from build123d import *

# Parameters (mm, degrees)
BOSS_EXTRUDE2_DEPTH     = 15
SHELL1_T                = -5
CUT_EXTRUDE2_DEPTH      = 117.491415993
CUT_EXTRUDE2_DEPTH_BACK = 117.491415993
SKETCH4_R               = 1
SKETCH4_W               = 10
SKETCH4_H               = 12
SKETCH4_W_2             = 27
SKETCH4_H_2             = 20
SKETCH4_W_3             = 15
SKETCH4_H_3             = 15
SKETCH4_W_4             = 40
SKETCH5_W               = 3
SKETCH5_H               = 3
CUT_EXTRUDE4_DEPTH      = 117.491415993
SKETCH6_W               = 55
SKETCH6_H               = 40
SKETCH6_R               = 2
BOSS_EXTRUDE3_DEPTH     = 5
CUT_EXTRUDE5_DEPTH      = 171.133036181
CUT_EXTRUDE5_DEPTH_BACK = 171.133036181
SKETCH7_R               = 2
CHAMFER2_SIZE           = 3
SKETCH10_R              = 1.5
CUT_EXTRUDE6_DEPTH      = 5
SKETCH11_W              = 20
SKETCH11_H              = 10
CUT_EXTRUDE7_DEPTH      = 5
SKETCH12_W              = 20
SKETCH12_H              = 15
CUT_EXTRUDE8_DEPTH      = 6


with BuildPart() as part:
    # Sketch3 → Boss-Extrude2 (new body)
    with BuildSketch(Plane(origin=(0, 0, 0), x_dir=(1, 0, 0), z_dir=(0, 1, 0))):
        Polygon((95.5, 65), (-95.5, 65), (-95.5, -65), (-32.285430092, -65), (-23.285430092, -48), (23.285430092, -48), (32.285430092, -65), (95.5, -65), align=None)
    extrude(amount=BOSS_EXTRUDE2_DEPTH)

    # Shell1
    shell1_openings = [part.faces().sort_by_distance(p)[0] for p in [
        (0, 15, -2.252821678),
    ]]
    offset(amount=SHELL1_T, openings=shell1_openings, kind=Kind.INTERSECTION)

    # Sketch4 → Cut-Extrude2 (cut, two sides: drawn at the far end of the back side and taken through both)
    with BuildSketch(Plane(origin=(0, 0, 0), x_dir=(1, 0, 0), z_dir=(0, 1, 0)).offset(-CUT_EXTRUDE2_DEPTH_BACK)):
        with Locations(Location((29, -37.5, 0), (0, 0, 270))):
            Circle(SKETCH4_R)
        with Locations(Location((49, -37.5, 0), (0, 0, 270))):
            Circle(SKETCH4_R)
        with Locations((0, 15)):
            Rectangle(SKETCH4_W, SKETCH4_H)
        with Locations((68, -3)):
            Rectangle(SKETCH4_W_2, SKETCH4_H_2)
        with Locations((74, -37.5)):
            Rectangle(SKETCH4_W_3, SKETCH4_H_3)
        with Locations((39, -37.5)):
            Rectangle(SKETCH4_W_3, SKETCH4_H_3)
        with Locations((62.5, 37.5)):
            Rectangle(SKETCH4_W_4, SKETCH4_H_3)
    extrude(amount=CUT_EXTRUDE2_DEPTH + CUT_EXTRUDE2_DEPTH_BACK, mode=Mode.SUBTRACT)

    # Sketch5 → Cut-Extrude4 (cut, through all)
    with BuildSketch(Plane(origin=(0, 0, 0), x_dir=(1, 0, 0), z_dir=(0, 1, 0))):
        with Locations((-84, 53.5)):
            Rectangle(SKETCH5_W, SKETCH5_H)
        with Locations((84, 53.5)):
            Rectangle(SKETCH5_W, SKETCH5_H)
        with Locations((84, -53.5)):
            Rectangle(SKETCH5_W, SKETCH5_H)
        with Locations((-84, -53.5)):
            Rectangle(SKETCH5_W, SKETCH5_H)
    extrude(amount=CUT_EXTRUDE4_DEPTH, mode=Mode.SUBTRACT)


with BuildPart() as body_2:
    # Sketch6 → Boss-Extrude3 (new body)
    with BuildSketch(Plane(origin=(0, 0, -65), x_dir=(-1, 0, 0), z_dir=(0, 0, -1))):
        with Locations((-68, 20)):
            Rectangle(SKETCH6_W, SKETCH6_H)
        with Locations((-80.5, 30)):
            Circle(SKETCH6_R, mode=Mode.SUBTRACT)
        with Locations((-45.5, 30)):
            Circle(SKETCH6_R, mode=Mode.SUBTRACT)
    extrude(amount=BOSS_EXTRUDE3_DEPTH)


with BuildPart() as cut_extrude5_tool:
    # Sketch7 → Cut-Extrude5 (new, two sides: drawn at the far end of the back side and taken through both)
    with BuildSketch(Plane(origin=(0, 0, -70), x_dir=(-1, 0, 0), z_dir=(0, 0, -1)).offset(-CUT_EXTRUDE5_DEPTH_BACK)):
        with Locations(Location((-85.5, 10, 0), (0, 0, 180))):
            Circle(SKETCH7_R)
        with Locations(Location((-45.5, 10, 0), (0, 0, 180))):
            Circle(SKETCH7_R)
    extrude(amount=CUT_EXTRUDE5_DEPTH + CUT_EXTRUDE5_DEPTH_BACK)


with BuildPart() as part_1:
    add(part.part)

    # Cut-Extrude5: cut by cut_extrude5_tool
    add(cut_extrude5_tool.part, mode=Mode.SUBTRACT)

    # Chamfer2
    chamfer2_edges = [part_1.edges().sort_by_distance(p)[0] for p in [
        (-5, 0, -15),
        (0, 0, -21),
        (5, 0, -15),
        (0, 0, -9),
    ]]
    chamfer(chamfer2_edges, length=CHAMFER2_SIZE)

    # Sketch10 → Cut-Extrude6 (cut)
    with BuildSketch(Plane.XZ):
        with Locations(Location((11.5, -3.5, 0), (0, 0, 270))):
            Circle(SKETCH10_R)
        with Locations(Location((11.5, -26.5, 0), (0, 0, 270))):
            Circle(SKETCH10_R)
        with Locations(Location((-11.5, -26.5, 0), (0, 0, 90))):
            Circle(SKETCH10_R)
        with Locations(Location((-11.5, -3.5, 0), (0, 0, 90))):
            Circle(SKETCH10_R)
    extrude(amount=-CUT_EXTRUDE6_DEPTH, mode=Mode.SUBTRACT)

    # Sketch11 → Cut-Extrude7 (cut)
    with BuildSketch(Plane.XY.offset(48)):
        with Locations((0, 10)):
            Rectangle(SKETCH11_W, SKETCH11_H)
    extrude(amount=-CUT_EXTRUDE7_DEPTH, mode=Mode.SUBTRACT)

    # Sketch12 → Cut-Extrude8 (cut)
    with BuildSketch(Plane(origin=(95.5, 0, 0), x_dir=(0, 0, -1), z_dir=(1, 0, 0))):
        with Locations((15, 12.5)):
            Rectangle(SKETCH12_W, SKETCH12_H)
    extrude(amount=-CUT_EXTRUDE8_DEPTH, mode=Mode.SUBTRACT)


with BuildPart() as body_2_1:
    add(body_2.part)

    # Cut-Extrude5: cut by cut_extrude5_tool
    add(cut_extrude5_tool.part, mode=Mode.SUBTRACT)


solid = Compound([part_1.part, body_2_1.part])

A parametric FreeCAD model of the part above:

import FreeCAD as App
import Part
import Sketcher
from FreeCAD import Vector
Q = App.Units.Quantity


def edges_at(feature, points):
    """Names of the edges that pass closest to the given points."""
    edges = feature.Shape.Edges
    near = lambda p: min(range(len(edges)), key=lambda i: edges[i].distToShape(Part.Vertex(*p))[0])
    return sorted({f"Edge{near(p) + 1}" for p in points})


def faces_at(feature, points):
    """Names of the faces that lie closest to the given points."""
    faces = feature.Shape.Faces
    near = lambda p: min(range(len(faces)), key=lambda i: faces[i].distToShape(Part.Vertex(*p))[0])
    return sorted({f"Face{near(p) + 1}" for p in points})


def add_polygon(sketch, points):
    """Adds a closed chain of lines whose ends are joined by coincident constraints."""
    first, n = sketch.GeometryCount, len(points)
    for a, b in zip(points, points[1:] + points[:1]):
        sketch.addGeometry(Part.LineSegment(App.Vector(*a, 0), App.Vector(*b, 0)), False)
    for i in range(n):
        sketch.addConstraint(Sketcher.Constraint("Coincident", first + i, 2, first + (i + 1) % n, 1))

doc = App.newDocument("Part")
body = doc.addObject("PartDesign::Body", "Body")

# Sketch on XZ plane
sketch1 = body.newObject("Sketcher::SketchObject", "Sketch")
sketch1.AttachmentSupport = (doc.getObject("XZ_Plane"), [""])
sketch1.MapMode = "FlatFace"
add_polygon(sketch1, [(96, -65), (-96, -65), (-96, 65), (-32, 65), (-23, 48), (23, 48), (32, 65), (96, 65)])  # lines 0-7
sketch1.addConstraint([
    Sketcher.Constraint("Horizontal", 0),
    Sketcher.Constraint("Vertical", 1),
    Sketcher.Constraint("Horizontal", 2),
    Sketcher.Constraint("Horizontal", 4),
    Sketcher.Constraint("Horizontal", 6),
    Sketcher.Constraint("Vertical", 7),
    Sketcher.Constraint("Symmetric", 0, 2, 6, 2, -1, 1),
    Sketcher.Constraint("Symmetric", 2, 2, 5, 2, -2),
    Sketcher.Constraint("Equal", 3, 5),
    Sketcher.Constraint("DistanceX", 0, 2, 0, 1, Q("191 mm")),
    Sketcher.Constraint("DistanceY", 1, 1, 1, 2, Q("130 mm")),
    Sketcher.Constraint("DistanceY", -1, 1, 3, 2, Q("48 mm")),
    Sketcher.Constraint("DistanceX", 2, 2, 3, 2, Q("9 mm")),
    Sketcher.Constraint("DistanceX", 2, 1, 2, 2, Q("63.21457 mm")),
])
pad1 = body.newObject("PartDesign::Pad", "Pad")
pad1.Profile = sketch1
pad1.Length = 15
pad1.Reversed = True
doc.recompute()

thickness = body.newObject("PartDesign::Thickness", "Thickness")
thickness.Base = (pad1, faces_at(pad1, [(0, 15, 0)]))
thickness.Value = 5
thickness.Reversed = True
thickness.Join = "Intersection"

# Sketch on XZ plane
sketch2 = body.newObject("Sketcher::SketchObject", "Sketch001")
sketch2.AttachmentSupport = (doc.getObject("XZ_Plane"), [""])
sketch2.MapMode = "FlatFace"
sketch2.addGeometry(Part.Circle(Vector(29, 37.5, 0), Vector(0, 0, 1), 1), False)  # 0
sketch2.addGeometry(Part.Circle(Vector(49, 37.5, 0), Vector(0, 0, 1), 1), False)  # 1
add_polygon(sketch2, [(-5, -21), (-5, -9), (5, -9), (5, -21)])  # lines 2-5
add_polygon(sketch2, [(54.5, -7), (54.5, 13), (81.5, 13), (81.5, -7)])  # lines 6-9
add_polygon(sketch2, [(66.5, 30), (66.5, 45), (81.5, 45), (81.5, 30)])  # lines 10-13
add_polygon(sketch2, [(31.5, 30), (31.5, 45), (46.5, 45), (46.5, 30)])  # lines 14-17
add_polygon(sketch2, [(42.5, -45), (42.5, -30), (82.5, -30), (82.5, -45)])  # lines 18-21
sketch2.addConstraint([
    Sketcher.Constraint("Vertical", 2),
    Sketcher.Constraint("Horizontal", 3),
    Sketcher.Constraint("Vertical", 4),
    Sketcher.Constraint("Horizontal", 5),
    Sketcher.Constraint("Vertical", 6),
    Sketcher.Constraint("Horizontal", 7),
    Sketcher.Constraint("Vertical", 8),
    Sketcher.Constraint("Horizontal", 9),
    Sketcher.Constraint("Vertical", 10),
    Sketcher.Constraint("Horizontal", 11),
    Sketcher.Constraint("Vertical", 12),
    Sketcher.Constraint("Horizontal", 13),
    Sketcher.Constraint("Vertical", 14),
    Sketcher.Constraint("Horizontal", 15),
    Sketcher.Constraint("Vertical", 16),
    Sketcher.Constraint("Horizontal", 17),
    Sketcher.Constraint("Vertical", 18),
    Sketcher.Constraint("Horizontal", 19),
    Sketcher.Constraint("Vertical", 20),
    Sketcher.Constraint("Horizontal", 21),
    Sketcher.Constraint("Equal", 0, 1),
    Sketcher.Constraint("Horizontal", 0, 3, 1, 3),
    Sketcher.Constraint("Horizontal", 11, 2, 14, 2),
    Sketcher.Constraint("Horizontal", 13, 2, 16, 2),
    Sketcher.Constraint("Vertical", 8, 2, 11, 2),
    Sketcher.Constraint("Equal", 13, 15),
    Sketcher.Constraint("Equal", 17, 10),
    Sketcher.Constraint("Equal", 16, 18),
    Sketcher.Constraint("Diameter", 0, Q("2 mm")),
    Sketcher.Constraint("DistanceX", 3, 1, 3, 2, Q("10 mm")),
    Sketcher.Constraint("DistanceX", 7, 1, 7, 2, Q("27 mm")),
    Sketcher.Constraint("DistanceX", 11, 1, 11, 2, Q("15 mm")),
    Sketcher.Constraint("DistanceX", 19, 1, 19, 2, Q("40 mm")),
    Sketcher.Constraint("DistanceY", 2, 1, 2, 2, Q("12 mm")),
    Sketcher.Constraint("DistanceY", 6, 1, 6, 2, Q("20 mm")),
    Sketcher.Constraint("DistanceX", -1, 1, 0, 3, Q("29 mm")),
    Sketcher.Constraint("DistanceX", -1, 1, 1, 3, Q("49 mm")),
    Sketcher.Constraint("DistanceX", 2, 2, -1, 1, Q("5 mm")),
    Sketcher.Constraint("DistanceY", 2, 2, -1, 1, Q("9 mm")),
    Sketcher.Constraint("DistanceY", -1, 1, 6, 2, Q("13 mm")),
    Sketcher.Constraint("DistanceY", -1, 1, 10, 2, Q("45 mm")),
    Sketcher.Constraint("DistanceY", 18, 2, -1, 1, Q("30 mm")),
    Sketcher.Constraint("DistanceX", 14, 2, 10, 2, Q("35 mm")),
    Sketcher.Constraint("DistanceX", 18, 2, 9, 2, Q("12 mm")),
    Sketcher.Constraint("DistanceY", -1, 1, 0, 3, Q("37.5 mm")),
    Sketcher.Constraint("DistanceX", -1, 1, 6, 2, Q("54.5 mm")),
])
pocket1 = body.newObject("PartDesign::Pocket", "Pocket")
pocket1.Profile = sketch2
pocket1.Type = "ThroughAll"
pocket1.Midplane = True

# Sketch on XZ plane
sketch3 = body.newObject("Sketcher::SketchObject", "Sketch002")
sketch3.AttachmentSupport = (doc.getObject("XZ_Plane"), [""])
sketch3.MapMode = "FlatFace"
add_polygon(sketch3, [(-85.5, -55), (-85.5, -52), (-82.5, -52), (-82.5, -55)])  # lines 0-3
add_polygon(sketch3, [(82.5, -55), (82.5, -52), (85.5, -52), (85.5, -55)])  # lines 4-7
add_polygon(sketch3, [(82.5, 52), (82.5, 55), (85.5, 55), (85.5, 52)])  # lines 8-11
add_polygon(sketch3, [(-85.5, 52), (-85.5, 55), (-82.5, 55), (-82.5, 52)])  # lines 12-15
sketch3.addConstraint([
    Sketcher.Constraint("Vertical", 0),
    Sketcher.Constraint("Horizontal", 1),
    Sketcher.Constraint("Vertical", 2),
    Sketcher.Constraint("Horizontal", 3),
    Sketcher.Constraint("Vertical", 4),
    Sketcher.Constraint("Horizontal", 5),
    Sketcher.Constraint("Vertical", 6),
    Sketcher.Constraint("Horizontal", 7),
    Sketcher.Constraint("Vertical", 8),
    Sketcher.Constraint("Horizontal", 9),
    Sketcher.Constraint("Vertical", 10),
    Sketcher.Constraint("Horizontal", 11),
    Sketcher.Constraint("Vertical", 12),
    Sketcher.Constraint("Horizontal", 13),
    Sketcher.Constraint("Vertical", 14),
    Sketcher.Constraint("Horizontal", 15),
    Sketcher.Constraint("Symmetric", 2, 2, 8, 2, -1, 1),
    Sketcher.Constraint("Symmetric", 0, 2, 10, 2, -1, 1),
    Sketcher.Constraint("Symmetric", 6, 2, 12, 2, -1, 1),
    Sketcher.Constraint("Symmetric", 4, 2, 14, 2, -1, 1),
    Sketcher.Constraint("Symmetric", 1, 2, 4, 2, -2),
    Sketcher.Constraint("Symmetric", 3, 2, 6, 2, -2),
    Sketcher.Constraint("Equal", 15, 0),
    Sketcher.Constraint("DistanceX", 1, 1, 1, 2, Q("3 mm")),
    Sketcher.Constraint("DistanceY", 0, 2, -1, 1, Q("52 mm")),
    Sketcher.Constraint("DistanceX", 1, 2, 4, 2, Q("165 mm")),
])
pocket2 = body.newObject("PartDesign::Pocket", "Pocket001")
pocket2.Profile = sketch3
pocket2.Type = "ThroughAll"
body2 = doc.addObject("PartDesign::Body", "Body001")

# Sketch on XY plane
sketch4 = body2.newObject("Sketcher::SketchObject", "Sketch003")
sketch4.AttachmentSupport = (doc.getObject("XY_Plane001"), [""])
sketch4.MapMode = "FlatFace"
sketch4.AttachmentOffset = App.Placement(Vector(0, 0, -65), App.Rotation())
add_polygon(sketch4, [(95.5, 40), (95.5, 0), (40.5, 0), (40.5, 40)])  # lines 0-3
sketch4.addGeometry(Part.Circle(Vector(80.5, 30, 0), Vector(0, 0, 1), 2), False)  # 4
sketch4.addGeometry(Part.Circle(Vector(45.5, 30, 0), Vector(0, 0, 1), 2), False)  # 5
sketch4.addConstraint([
    Sketcher.Constraint("Vertical", 0),
    Sketcher.Constraint("Horizontal", 1),
    Sketcher.Constraint("Vertical", 2),
    Sketcher.Constraint("Horizontal", 3),
    Sketcher.Constraint("Equal", 4, 5),
    Sketcher.Constraint("PointOnObject", 0, 2, -1),
    Sketcher.Constraint("Horizontal", 4, 3, 5, 3),
    Sketcher.Constraint("Diameter", 4, Q("4 mm")),
    Sketcher.Constraint("DistanceX", 1, 2, 1, 1, Q("55 mm")),
    Sketcher.Constraint("DistanceY", 0, 2, 0, 1, Q("40 mm")),
    Sketcher.Constraint("DistanceY", -1, 1, 4, 3, Q("30 mm")),
    Sketcher.Constraint("DistanceX", 5, 3, 4, 3, Q("35 mm")),
    Sketcher.Constraint("DistanceX", 4, 3, 0, 2, Q("15 mm")),
    Sketcher.Constraint("DistanceX", -1, 1, 4, 3, Q("80.5 mm")),
])
pad2 = body2.newObject("PartDesign::Pad", "Pad001")
pad2.Profile = sketch4
pad2.Length = 5
pad2.Reversed = True
body3 = doc.addObject("PartDesign::Body", "Body002")
body3.AllowCompound = True

# Sketch on XY plane
sketch5 = body3.newObject("Sketcher::SketchObject", "Sketch004")
sketch5.AttachmentSupport = (doc.getObject("XY_Plane002"), [""])
sketch5.MapMode = "FlatFace"
sketch5.AttachmentOffset = App.Placement(Vector(0, 0, -70), App.Rotation())
sketch5.addGeometry([
    Part.Circle(Vector(85.5, 10, 0), Vector(0, 0, 1), 2),
    Part.Circle(Vector(45.5, 10, 0), Vector(0, 0, 1), 2),
], False)
sketch5.addConstraint([
    Sketcher.Constraint("Equal", 0, 1),
    Sketcher.Constraint("Horizontal", 0, 3, 1, 3),
    Sketcher.Constraint("Diameter", 0, Q("4 mm")),
    Sketcher.Constraint("DistanceY", -1, 1, 0, 3, Q("10 mm")),
    Sketcher.Constraint("DistanceX", 1, 3, 0, 3, Q("40 mm")),
    Sketcher.Constraint("DistanceX", -1, 1, 0, 3, Q("85.5 mm")),
])
pad3 = body3.newObject("PartDesign::Pad", "Pad002")
pad3.Profile = sketch5
pad3.Type = "TwoLengths"
pad3.Length = 171.133036
pad3.Length2 = 171.133036
pad3.Reversed = True
doc.recompute()

body4 = doc.addObject("PartDesign::Body", "Body003")
body4.BaseFeature = body3
boolean = body.newObject("PartDesign::Boolean", "Boolean")
boolean.Type = "Cut"
boolean.addObjects([body4])
doc.recompute()

chamfer = body.newObject("PartDesign::Chamfer", "Chamfer")
chamfer.Base = (boolean, edges_at(boolean, [
    (-5, 0, -15),
    (0, 0, -21),
    (5, 0, -15),
    (0, 0, -9),
]))
chamfer.Size = 3

# Sketch on XZ plane
sketch6 = body.newObject("Sketcher::SketchObject", "Sketch005")
sketch6.AttachmentSupport = (doc.getObject("XZ_Plane"), [""])
sketch6.MapMode = "FlatFace"
sketch6.addGeometry([
    Part.Circle(Vector(11.5, -3.5, 0), Vector(0, 0, 1), 1.5),
    Part.Circle(Vector(11.5, -26.5, 0), Vector(0, 0, 1), 1.5),
    Part.Circle(Vector(-11.5, -26.5, 0), Vector(0, 0, 1), 1.5),
    Part.Circle(Vector(-11.5, -3.5, 0), Vector(0, 0, 1), 1.5),
], False)
sketch6.addConstraint([
    Sketcher.Constraint("Equal", 0, 1),
    Sketcher.Constraint("Equal", 1, 2),
    Sketcher.Constraint("Equal", 2, 3),
    Sketcher.Constraint("Symmetric", 1, 3, 2, 3, -2),
    Sketcher.Constraint("Symmetric", 0, 3, 3, 3, -2),
    Sketcher.Constraint("Vertical", 0, 3, 1, 3),
    Sketcher.Constraint("Diameter", 0, Q("3 mm")),
    Sketcher.Constraint("DistanceY", 1, 3, 0, 3, Q("23 mm")),
    Sketcher.Constraint("DistanceX", 2, 3, 1, 3, Q("23 mm")),
    Sketcher.Constraint("DistanceY", 0, 3, -1, 1, Q("3.5 mm")),
])
pocket3 = body.newObject("PartDesign::Pocket", "Pocket002")
pocket3.Profile = sketch6
pocket3.Length = 5

# Sketch on XY plane
sketch7 = body.newObject("Sketcher::SketchObject", "Sketch006")
sketch7.AttachmentSupport = (doc.getObject("XY_Plane"), [""])
sketch7.MapMode = "FlatFace"
sketch7.AttachmentOffset = App.Placement(Vector(0, 0, 48), App.Rotation())
add_polygon(sketch7, [(-10, 15), (-10, 5), (10, 5), (10, 15)])  # lines 0-3
sketch7.addConstraint([
    Sketcher.Constraint("Vertical", 0),
    Sketcher.Constraint("Horizontal", 1),
    Sketcher.Constraint("Vertical", 2),
    Sketcher.Constraint("Horizontal", 3),
    Sketcher.Constraint("DistanceX", 1, 1, 1, 2, Q("20 mm")),
    Sketcher.Constraint("DistanceY", 0, 2, 0, 1, Q("10 mm")),
    Sketcher.Constraint("DistanceX", 0, 2, -1, 1, Q("10 mm")),
    Sketcher.Constraint("DistanceY", -1, 1, 0, 2, Q("5 mm")),
])
pocket4 = body.newObject("PartDesign::Pocket", "Pocket003")
pocket4.Profile = sketch7
pocket4.Length = 5

# Sketch on YZ plane
sketch8 = body.newObject("Sketcher::SketchObject", "Sketch007")
sketch8.AttachmentSupport = (doc.getObject("YZ_Plane"), [""])
sketch8.MapMode = "FlatFace"
sketch8.AttachmentOffset = App.Placement(Vector(0, 0, 95.5), App.Rotation())
add_polygon(sketch8, [(20, -5), (5, -5), (5, -25), (20, -25)])  # lines 0-3
sketch8.addConstraint([
    Sketcher.Constraint("Horizontal", 0),
    Sketcher.Constraint("Vertical", 1),
    Sketcher.Constraint("Horizontal", 2),
    Sketcher.Constraint("Vertical", 3),
    Sketcher.Constraint("DistanceX", 0, 2, 0, 1, Q("15 mm")),
    Sketcher.Constraint("DistanceY", 1, 2, 1, 1, Q("20 mm")),
    Sketcher.Constraint("DistanceX", -1, 1, 0, 2, Q("5 mm")),
    Sketcher.Constraint("DistanceY", 0, 2, -1, 1, Q("5 mm")),
])
pocket5 = body.newObject("PartDesign::Pocket", "Pocket004")
pocket5.Profile = sketch8
pocket5.Length = 6
doc.recompute()

boolean2 = body2.newObject("PartDesign::Boolean", "Boolean001")
boolean2.Type = "Cut"
boolean2.addObjects([body3])

doc.recompute()
